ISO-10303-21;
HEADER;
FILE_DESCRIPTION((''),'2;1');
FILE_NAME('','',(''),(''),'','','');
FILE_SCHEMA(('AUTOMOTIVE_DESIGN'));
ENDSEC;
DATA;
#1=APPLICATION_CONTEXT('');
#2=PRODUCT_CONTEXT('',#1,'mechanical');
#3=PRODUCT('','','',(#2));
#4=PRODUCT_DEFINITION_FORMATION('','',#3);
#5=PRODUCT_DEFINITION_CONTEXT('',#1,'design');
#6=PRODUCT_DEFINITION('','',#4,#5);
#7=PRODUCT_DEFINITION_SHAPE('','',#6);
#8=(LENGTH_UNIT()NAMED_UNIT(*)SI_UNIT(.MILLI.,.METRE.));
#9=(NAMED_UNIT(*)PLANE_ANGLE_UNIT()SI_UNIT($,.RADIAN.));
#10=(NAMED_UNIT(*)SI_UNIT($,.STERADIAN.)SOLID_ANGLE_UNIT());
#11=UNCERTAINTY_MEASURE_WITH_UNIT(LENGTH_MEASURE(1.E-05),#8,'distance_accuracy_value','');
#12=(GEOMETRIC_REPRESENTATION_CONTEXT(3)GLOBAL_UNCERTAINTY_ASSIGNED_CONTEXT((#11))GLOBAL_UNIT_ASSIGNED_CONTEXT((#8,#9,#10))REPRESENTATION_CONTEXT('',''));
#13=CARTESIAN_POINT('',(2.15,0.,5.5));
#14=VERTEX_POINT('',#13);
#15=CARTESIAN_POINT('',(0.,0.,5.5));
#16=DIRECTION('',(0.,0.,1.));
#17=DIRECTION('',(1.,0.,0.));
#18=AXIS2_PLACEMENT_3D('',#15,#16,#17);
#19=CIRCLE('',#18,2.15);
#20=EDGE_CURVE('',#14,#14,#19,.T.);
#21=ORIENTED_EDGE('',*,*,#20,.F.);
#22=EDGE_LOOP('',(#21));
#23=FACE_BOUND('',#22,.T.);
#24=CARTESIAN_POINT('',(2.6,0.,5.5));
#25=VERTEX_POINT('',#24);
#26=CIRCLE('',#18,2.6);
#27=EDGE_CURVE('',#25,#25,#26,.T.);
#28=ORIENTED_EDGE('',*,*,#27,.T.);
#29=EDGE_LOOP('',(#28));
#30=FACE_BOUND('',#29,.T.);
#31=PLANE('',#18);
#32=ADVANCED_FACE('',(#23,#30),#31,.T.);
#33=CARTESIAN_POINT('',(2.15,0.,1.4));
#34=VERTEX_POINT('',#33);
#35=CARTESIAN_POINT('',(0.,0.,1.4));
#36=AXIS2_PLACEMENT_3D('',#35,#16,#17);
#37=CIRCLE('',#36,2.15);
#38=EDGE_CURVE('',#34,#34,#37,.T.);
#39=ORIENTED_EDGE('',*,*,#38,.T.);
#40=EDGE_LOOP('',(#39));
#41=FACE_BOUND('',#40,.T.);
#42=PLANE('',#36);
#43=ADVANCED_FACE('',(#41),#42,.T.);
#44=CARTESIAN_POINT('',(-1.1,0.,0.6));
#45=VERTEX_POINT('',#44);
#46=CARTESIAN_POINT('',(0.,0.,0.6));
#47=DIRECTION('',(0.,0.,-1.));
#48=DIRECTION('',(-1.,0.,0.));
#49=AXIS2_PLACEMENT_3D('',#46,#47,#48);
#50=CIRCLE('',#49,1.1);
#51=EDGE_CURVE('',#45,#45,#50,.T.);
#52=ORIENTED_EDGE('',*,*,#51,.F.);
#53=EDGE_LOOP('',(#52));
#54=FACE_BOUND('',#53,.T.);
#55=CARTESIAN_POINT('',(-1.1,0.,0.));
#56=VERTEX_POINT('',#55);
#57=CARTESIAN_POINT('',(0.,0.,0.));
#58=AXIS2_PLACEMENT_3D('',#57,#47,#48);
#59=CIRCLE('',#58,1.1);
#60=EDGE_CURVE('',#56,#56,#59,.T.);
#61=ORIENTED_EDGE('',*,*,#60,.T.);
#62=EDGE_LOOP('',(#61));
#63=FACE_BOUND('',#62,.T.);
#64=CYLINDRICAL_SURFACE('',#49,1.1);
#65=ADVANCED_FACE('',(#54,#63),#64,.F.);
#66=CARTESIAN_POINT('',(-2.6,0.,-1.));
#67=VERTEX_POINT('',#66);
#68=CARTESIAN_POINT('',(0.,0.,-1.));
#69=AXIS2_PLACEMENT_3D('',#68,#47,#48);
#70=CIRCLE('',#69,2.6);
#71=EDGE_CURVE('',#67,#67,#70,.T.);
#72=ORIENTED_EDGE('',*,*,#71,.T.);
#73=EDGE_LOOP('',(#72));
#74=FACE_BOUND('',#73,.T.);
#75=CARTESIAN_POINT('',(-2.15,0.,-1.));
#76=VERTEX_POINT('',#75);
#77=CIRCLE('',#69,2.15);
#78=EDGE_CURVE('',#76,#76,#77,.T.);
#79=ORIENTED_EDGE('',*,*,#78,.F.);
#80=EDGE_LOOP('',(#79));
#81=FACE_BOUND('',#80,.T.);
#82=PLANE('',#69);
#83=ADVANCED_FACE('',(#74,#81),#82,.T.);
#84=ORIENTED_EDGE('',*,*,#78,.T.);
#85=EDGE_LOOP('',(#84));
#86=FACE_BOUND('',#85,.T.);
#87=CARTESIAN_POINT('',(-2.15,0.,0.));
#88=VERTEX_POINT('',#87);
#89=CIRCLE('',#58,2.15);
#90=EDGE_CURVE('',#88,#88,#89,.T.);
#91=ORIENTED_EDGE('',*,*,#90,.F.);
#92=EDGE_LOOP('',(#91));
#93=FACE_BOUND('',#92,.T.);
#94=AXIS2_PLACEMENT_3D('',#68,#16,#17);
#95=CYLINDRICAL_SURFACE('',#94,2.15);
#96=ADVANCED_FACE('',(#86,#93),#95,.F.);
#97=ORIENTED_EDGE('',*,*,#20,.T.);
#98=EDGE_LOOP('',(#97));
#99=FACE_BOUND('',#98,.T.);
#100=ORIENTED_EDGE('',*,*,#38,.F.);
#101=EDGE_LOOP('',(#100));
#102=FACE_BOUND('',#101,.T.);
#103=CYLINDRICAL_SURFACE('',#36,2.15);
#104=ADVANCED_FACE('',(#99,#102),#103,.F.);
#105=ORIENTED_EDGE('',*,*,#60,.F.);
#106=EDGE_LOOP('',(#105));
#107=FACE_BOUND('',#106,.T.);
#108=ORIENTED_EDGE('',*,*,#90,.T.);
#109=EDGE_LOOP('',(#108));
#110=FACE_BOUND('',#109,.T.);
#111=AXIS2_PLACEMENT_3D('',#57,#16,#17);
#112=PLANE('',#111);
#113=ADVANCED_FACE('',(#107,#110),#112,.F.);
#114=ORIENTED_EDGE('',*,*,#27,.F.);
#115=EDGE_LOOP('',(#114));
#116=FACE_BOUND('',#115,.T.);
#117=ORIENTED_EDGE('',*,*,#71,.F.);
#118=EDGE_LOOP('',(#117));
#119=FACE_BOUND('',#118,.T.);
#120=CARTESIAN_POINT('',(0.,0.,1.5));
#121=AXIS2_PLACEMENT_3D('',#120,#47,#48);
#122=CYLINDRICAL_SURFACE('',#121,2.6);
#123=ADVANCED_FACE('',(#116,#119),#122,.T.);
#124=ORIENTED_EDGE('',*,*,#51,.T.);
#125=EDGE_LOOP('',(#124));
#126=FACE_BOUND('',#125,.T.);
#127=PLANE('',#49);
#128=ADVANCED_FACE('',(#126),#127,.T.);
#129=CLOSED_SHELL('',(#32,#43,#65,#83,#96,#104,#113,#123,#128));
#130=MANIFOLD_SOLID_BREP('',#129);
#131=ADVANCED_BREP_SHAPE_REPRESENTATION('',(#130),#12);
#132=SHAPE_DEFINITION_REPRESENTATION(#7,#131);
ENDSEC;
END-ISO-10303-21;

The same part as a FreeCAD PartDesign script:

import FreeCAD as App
import Part
import Sketcher
from FreeCAD import Vector

doc = App.newDocument("Part")
body = doc.addObject("PartDesign::Body", "Body")

# Sketch on XY plane
sketch1 = body.newObject("Sketcher::SketchObject", "Sketch")
sketch1.AttachmentSupport = (doc.getObject("XY_Plane"), [""])
sketch1.MapMode = "FlatFace"
sketch1.addGeometry(Part.Circle(Vector(0, 0, 0), Vector(0, 0, 1), 2.6), False)
sketch1.addConstraint([
    Sketcher.Constraint("Coincident", 0, 3, -1, 1),
    Sketcher.Constraint("Diameter", 0, 5.2),
])
pad1 = body.newObject("PartDesign::Pad", "Pad")
pad1.Profile = sketch1
pad1.Length = 1.5

# Sketch on XY plane
sketch2 = body.newObject("Sketcher::SketchObject", "Sketch001")
sketch2.AttachmentSupport = (doc.getObject("XY_Plane"), [""])
sketch2.MapMode = "FlatFace"
sketch2.addGeometry(Part.Circle(Vector(0, 0, 0), Vector(0, 0, 1), 1.1), False)
sketch2.addConstraint([
    Sketcher.Constraint("Coincident", 0, 3, -1, 1),
    Sketcher.Constraint("Diameter", 0, 2.2),
])
pocket1 = body.newObject("PartDesign::Pocket", "Pocket")
pocket1.Profile = sketch2
pocket1.Length = 0.6
pocket1.Reversed = True

# Sketch on XY plane
sketch3 = body.newObject("Sketcher::SketchObject", "Sketch002")
sketch3.AttachmentSupport = (doc.getObject("XY_Plane"), [""])
sketch3.MapMode = "FlatFace"
sketch3.AttachmentOffset = App.Placement(Vector(0, 0, -1), App.Rotation())
sketch3.addGeometry([
    Part.Circle(Vector(0, 0, 0), Vector(0, 0, 1), 2.6),
    Part.Circle(Vector(0, 0, 0), Vector(0, 0, 1), 2.15),
], False)
sketch3.addConstraint([
    Sketcher.Constraint("Coincident", 0, 3, -1, 1),
    Sketcher.Constraint("Coincident", 1, 3, -1, 1),
    Sketcher.Constraint("Diameter", 0, 5.2),
    Sketcher.Constraint("Diameter", 1, 4.3),
])
pad2 = body.newObject("PartDesign::Pad", "Pad001")
pad2.Profile = sketch3
pad2.Length = 1

# Sketch on XY plane
sketch4 = body.newObject("Sketcher::SketchObject", "Sketch003")
sketch4.AttachmentSupport = (doc.getObject("XY_Plane"), [""])
sketch4.MapMode = "FlatFace"
sketch4.AttachmentOffset = App.Placement(Vector(0, 0, 1.5), App.Rotation())
sketch4.addGeometry(Part.Circle(Vector(0, 0, 0), Vector(0, 0, 1), 2.6), False)
sketch4.addConstraint([
    Sketcher.Constraint("Coincident", 0, 3, -1, 1),
    Sketcher.Constraint("Diameter", 0, 5.2),
])
pad3 = body.newObject("PartDesign::Pad", "Pad002")
pad3.Profile = sketch4
pad3.Length = 4

# Sketch on XY plane
sketch5 = body.newObject("Sketcher::SketchObject", "Sketch004")
sketch5.AttachmentSupport = (doc.getObject("XY_Plane"), [""])
sketch5.MapMode = "FlatFace"
sketch5.AttachmentOffset = App.Placement(Vector(0, 0, 1.4), App.Rotation())
sketch5.addGeometry(Part.Circle(Vector(0, 0, 0), Vector(0, 0, 1), 2.15), False)
sketch5.addConstraint([
    Sketcher.Constraint("Coincident", 0, 3, -1, 1),
    Sketcher.Constraint("Diameter", 0, 4.3),
])
pocket2 = body.newObject("PartDesign::Pocket", "Pocket001")
pocket2.Profile = sketch5
pocket2.Length = 4.1
pocket2.Reversed = True

doc.recompute()
